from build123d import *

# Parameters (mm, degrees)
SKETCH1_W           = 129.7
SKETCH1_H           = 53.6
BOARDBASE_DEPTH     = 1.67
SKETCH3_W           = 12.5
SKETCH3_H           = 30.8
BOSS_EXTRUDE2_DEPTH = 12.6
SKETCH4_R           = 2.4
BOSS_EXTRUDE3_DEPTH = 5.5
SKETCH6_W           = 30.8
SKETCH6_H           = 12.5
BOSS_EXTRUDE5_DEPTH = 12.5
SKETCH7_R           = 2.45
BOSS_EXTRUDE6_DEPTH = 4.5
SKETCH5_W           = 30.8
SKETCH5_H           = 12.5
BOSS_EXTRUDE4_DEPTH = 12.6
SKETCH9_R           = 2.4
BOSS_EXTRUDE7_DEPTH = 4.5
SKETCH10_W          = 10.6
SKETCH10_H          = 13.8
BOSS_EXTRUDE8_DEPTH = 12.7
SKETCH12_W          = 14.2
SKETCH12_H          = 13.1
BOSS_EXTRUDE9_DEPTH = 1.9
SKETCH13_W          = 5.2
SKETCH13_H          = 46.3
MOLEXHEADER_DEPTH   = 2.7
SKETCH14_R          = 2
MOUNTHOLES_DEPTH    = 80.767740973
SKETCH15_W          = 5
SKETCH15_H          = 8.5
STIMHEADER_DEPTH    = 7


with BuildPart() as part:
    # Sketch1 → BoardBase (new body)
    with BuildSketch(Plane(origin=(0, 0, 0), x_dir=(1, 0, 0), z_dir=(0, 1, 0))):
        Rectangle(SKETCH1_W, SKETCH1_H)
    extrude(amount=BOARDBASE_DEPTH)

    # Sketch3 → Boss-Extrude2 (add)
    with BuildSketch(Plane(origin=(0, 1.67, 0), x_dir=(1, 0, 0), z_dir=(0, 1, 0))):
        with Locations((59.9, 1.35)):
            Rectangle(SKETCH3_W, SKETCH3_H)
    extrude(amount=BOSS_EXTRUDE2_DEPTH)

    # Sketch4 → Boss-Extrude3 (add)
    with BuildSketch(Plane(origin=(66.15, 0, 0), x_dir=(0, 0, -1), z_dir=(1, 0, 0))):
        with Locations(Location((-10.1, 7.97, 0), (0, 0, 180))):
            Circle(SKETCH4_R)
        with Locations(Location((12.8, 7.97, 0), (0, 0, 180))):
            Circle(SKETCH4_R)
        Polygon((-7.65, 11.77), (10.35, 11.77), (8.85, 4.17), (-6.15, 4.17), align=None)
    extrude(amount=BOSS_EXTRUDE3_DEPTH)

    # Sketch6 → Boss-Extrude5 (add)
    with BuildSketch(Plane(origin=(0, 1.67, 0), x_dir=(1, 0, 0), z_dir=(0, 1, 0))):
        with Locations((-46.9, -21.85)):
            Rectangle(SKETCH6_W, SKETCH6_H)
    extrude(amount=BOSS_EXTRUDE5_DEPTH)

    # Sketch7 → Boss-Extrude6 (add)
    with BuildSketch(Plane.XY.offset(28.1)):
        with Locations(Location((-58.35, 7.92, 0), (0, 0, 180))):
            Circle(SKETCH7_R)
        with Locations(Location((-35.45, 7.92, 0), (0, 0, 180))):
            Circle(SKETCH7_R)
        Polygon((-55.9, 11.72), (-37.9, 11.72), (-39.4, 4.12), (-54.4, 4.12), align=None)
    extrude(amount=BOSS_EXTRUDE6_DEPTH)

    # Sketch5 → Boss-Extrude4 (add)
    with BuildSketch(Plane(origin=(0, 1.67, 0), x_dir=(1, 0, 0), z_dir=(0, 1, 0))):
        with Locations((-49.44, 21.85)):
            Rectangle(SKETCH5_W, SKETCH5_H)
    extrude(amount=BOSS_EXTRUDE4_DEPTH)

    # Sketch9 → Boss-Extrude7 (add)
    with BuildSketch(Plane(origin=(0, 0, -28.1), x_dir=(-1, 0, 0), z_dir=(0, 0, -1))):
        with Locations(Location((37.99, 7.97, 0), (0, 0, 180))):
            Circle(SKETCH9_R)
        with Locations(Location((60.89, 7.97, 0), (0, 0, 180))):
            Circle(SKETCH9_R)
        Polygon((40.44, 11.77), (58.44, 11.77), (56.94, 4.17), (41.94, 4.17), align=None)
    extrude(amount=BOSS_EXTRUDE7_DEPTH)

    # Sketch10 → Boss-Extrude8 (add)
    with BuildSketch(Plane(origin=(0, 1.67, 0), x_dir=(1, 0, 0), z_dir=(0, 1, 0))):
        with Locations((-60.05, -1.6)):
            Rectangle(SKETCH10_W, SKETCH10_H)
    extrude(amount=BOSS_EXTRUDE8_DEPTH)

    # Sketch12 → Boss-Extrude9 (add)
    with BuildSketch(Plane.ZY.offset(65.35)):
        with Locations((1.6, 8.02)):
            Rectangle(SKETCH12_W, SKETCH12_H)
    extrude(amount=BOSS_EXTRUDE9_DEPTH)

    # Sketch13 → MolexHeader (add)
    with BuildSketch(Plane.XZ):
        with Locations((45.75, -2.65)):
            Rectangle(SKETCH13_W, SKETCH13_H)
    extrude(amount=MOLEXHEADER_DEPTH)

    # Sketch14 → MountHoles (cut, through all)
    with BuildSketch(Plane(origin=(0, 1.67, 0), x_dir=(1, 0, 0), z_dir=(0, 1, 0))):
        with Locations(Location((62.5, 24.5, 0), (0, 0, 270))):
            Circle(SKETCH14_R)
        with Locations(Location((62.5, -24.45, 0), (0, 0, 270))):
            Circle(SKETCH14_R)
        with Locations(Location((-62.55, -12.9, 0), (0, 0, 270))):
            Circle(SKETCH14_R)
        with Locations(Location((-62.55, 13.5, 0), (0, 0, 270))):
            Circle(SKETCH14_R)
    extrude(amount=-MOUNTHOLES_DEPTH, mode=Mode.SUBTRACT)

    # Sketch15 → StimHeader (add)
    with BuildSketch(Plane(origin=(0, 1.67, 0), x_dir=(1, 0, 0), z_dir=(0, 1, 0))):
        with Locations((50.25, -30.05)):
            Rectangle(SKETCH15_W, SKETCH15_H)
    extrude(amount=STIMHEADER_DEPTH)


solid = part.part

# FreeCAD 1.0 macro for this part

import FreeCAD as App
import Part
import Sketcher

doc = App.newDocument("Part")
body = doc.addObject("PartDesign::Body", "Body")

# Sketch on XZ plane
sketch1 = body.newObject("Sketcher::SketchObject", "Sketch")
sketch1.AttachmentSupport = (doc.getObject("XZ_Plane"), [""])
sketch1.MapMode = "FlatFace"
sketch1.addGeometry([
    Part.LineSegment(App.Vector(-65, -27, 0), App.Vector(-65, 27, 0)),
    Part.LineSegment(App.Vector(-65, 27, 0), App.Vector(65, 27, 0)),
    Part.LineSegment(App.Vector(65, 27, 0), App.Vector(65, -27, 0)),
    Part.LineSegment(App.Vector(65, -27, 0), App.Vector(-65, -27, 0)),
], False)
sketch1.addConstraint([
    Sketcher.Constraint("Coincident", 0, 2, 1, 1),
    Sketcher.Constraint("Coincident", 1, 2, 2, 1),
    Sketcher.Constraint("Coincident", 2, 2, 3, 1),
    Sketcher.Constraint("Coincident", 3, 2, 0, 1),
    Sketcher.Constraint("Vertical", 0),
    Sketcher.Constraint("Horizontal", 1),
    Sketcher.Constraint("Vertical", 2),
    Sketcher.Constraint("Horizontal", 3),
    Sketcher.Constraint("Symmetric", 0, 2, 2, 2, -1, 1),
    Sketcher.Constraint("DistanceX", 1, 1, 1, 2, 129.7),
    Sketcher.Constraint("DistanceY", 0, 1, 0, 2, 53.6),
])
pad1 = body.newObject("PartDesign::Pad", "Pad")
pad1.Profile = sketch1
pad1.Length = 1.67
pad1.Reversed = True

# Sketch on XZ plane
sketch2 = body.newObject("Sketcher::SketchObject", "Sketch001")
sketch2.AttachmentSupport = (doc.getObject("XZ_Plane"), [""])
sketch2.MapMode = "FlatFace"
sketch2.AttachmentOffset = App.Placement(App.Vector(0, 0, -1.67), App.Rotation())
sketch2.addGeometry([
    Part.LineSegment(App.Vector(54, -17, 0), App.Vector(54, 14, 0)),
    Part.LineSegment(App.Vector(54, 14, 0), App.Vector(66, 14, 0)),
    Part.LineSegment(App.Vector(66, 14, 0), App.Vector(66, -17, 0)),
    Part.LineSegment(App.Vector(66, -17, 0), App.Vector(54, -17, 0)),
], False)
sketch2.addConstraint([
    Sketcher.Constraint("Coincident", 0, 2, 1, 1),
    Sketcher.Constraint("Coincident", 1, 2, 2, 1),
    Sketcher.Constraint("Coincident", 2, 2, 3, 1),
    Sketcher.Constraint("Coincident", 3, 2, 0, 1),
    Sketcher.Constraint("Vertical", 0),
    Sketcher.Constraint("Horizontal", 1),
    Sketcher.Constraint("Vertical", 2),
    Sketcher.Constraint("Horizontal", 3),
    Sketcher.Constraint("DistanceX", 1, 1, 1, 2, 12.5),
    Sketcher.Constraint("DistanceY", 0, 1, 0, 2, 30.8),
    Sketcher.Constraint("DistanceX", -1, 1, 0, 2, 53.65),
    Sketcher.Constraint("DistanceY", -1, 1, 0, 2, 14.05),
])
pad2 = body.newObject("PartDesign::Pad", "Pad001")
pad2.Profile = sketch2
pad2.Length = 12.6
pad2.Reversed = True

# Sketch on YZ plane
sketch3 = body.newObject("Sketcher::SketchObject", "Sketch002")
sketch3.AttachmentSupport = (doc.getObject("YZ_Plane"), [""])
sketch3.MapMode = "FlatFace"
sketch3.AttachmentOffset = App.Placement(App.Vector(0, 0, 66.15), App.Rotation())
sketch3.addGeometry([
    Part.Circle(App.Vector(8, 10.1, 0), App.Vector(0, 0, 1), 2.4),  # 0
    Part.Circle(App.Vector(8, -12.8, 0), App.Vector(0, 0, 1), 2.4),  # 1
    Part.LineSegment(App.Vector(11.8, -10.3, 0), App.Vector(11.8, 7.7, 0)),  # 2
    Part.LineSegment(App.Vector(11.8, 7.7, 0), App.Vector(4.2, 6.2, 0)),  # 3
    Part.LineSegment(App.Vector(4.2, 6.2, 0), App.Vector(4.2, -8.8, 0)),  # 4
    Part.LineSegment(App.Vector(4.2, -8.8, 0), App.Vector(11.8, -10.3, 0)),  # 5
], False)
sketch3.addConstraint([
    Sketcher.Constraint("Coincident", 2, 2, 3, 1),
    Sketcher.Constraint("Coincident", 3, 2, 4, 1),
    Sketcher.Constraint("Coincident", 4, 2, 5, 1),
    Sketcher.Constraint("Coincident", 5, 2, 2, 1),
    Sketcher.Constraint("Vertical", 2),
    Sketcher.Constraint("Vertical", 4),
    Sketcher.Constraint("Equal", 0, 1),
    Sketcher.Constraint("Vertical", 0, 3, 1, 3),
    Sketcher.Constraint("Equal", 3, 5),
    Sketcher.Constraint("Diameter", 0, 4.8),
    Sketcher.Constraint("DistanceY", 2, 1, 2, 2, 18.0),
    Sketcher.Constraint("DistanceY", 4, 2, 4, 1, 15.0),
    Sketcher.Constraint("DistanceY", -1, 1, 0, 3, 10.1),
    Sketcher.Constraint("DistanceY", 1, 3, -1, 1, 12.8),
    Sketcher.Constraint("DistanceX", 0, 3, 2, 2, 3.8),
    Sketcher.Constraint("DistanceX", 3, 2, 0, 3, 3.8),
    Sketcher.Constraint("DistanceX", -1, 1, 0, 3, 7.97),
    Sketcher.Constraint("DistanceY", -1, 1, 2, 2, 7.65),
])
pad3 = body.newObject("PartDesign::Pad", "Pad002")
pad3.Profile = sketch3
pad3.Length = 5.5

# Sketch on XZ plane
sketch4 = body.newObject("Sketcher::SketchObject", "Sketch003")
sketch4.AttachmentSupport = (doc.getObject("XZ_Plane"), [""])
sketch4.MapMode = "FlatFace"
sketch4.AttachmentOffset = App.Placement(App.Vector(0, 0, -1.67), App.Rotation())
sketch4.addGeometry([
    Part.LineSegment(App.Vector(-62, 16, 0), App.Vector(-62, 28, 0)),
    Part.LineSegment(App.Vector(-62, 28, 0), App.Vector(-32, 28, 0)),
    Part.LineSegment(App.Vector(-32, 28, 0), App.Vector(-32, 16, 0)),
    Part.LineSegment(App.Vector(-32, 16, 0), App.Vector(-62, 16, 0)),
], False)
sketch4.addConstraint([
    Sketcher.Constraint("Coincident", 0, 2, 1, 1),
    Sketcher.Constraint("Coincident", 1, 2, 2, 1),
    Sketcher.Constraint("Coincident", 2, 2, 3, 1),
    Sketcher.Constraint("Coincident", 3, 2, 0, 1),
    Sketcher.Constraint("Vertical", 0),
    Sketcher.Constraint("Horizontal", 1),
    Sketcher.Constraint("Vertical", 2),
    Sketcher.Constraint("Horizontal", 3),
    Sketcher.Constraint("DistanceX", 1, 1, 1, 2, 30.8),
    Sketcher.Constraint("DistanceY", 0, 1, 0, 2, 12.5),
    Sketcher.Constraint("DistanceX", 0, 2, -1, 1, 62.3),
    Sketcher.Constraint("DistanceY", -1, 1, 0, 2, 28.1),
])
pad4 = body.newObject("PartDesign::Pad", "Pad003")
pad4.Profile = sketch4
pad4.Length = 12.5
pad4.Reversed = True

# Sketch on XY plane
sketch5 = body.newObject("Sketcher::SketchObject", "Sketch004")
sketch5.AttachmentSupport = (doc.getObject("XY_Plane"), [""])
sketch5.MapMode = "FlatFace"
sketch5.AttachmentOffset = App.Placement(App.Vector(0, 0, 28.1), App.Rotation())
sketch5.addGeometry([
    Part.Circle(App.Vector(-58.4, 7.9, 0), App.Vector(0, 0, 1), 2.5),  # 0
    Part.Circle(App.Vector(-35.5, 7.9, 0), App.Vector(0, 0, 1), 2.5),  # 1
    Part.LineSegment(App.Vector(-37.9, 11.7, 0), App.Vector(-55.9, 11.7, 0)),  # 2
    Part.LineSegment(App.Vector(-55.9, 11.7, 0), App.Vector(-54.4, 4.1, 0)),  # 3
    Part.LineSegment(App.Vector(-54.4, 4.1, 0), App.Vector(-39.4, 4.1, 0)),  # 4
    Part.LineSegment(App.Vector(-39.4, 4.1, 0), App.Vector(-37.9, 11.7, 0)),  # 5
], False)
sketch5.addConstraint([
    Sketcher.Constraint("Coincident", 2, 2, 3, 1),
    Sketcher.Constraint("Coincident", 3, 2, 4, 1),
    Sketcher.Constraint("Coincident", 4, 2, 5, 1),
    Sketcher.Constraint("Coincident", 5, 2, 2, 1),
    Sketcher.Constraint("Horizontal", 2),
    Sketcher.Constraint("Horizontal", 4),
    Sketcher.Constraint("Equal", 0, 1),
    Sketcher.Constraint("Horizontal", 0, 3, 1, 3),
    Sketcher.Constraint("Equal", 3, 5),
    Sketcher.Constraint("Diameter", 0, 4.9),
    Sketcher.Constraint("DistanceX", 2, 2, 2, 1, 18.0),
    Sketcher.Constraint("DistanceX", 4, 1, 4, 2, 15.0),
    Sketcher.Constraint("DistanceX", 2, 2, -1, 1, 55.9),
    Sketcher.Constraint("DistanceX", 0, 3, 1, 3, 22.9),
    Sketcher.Constraint("DistanceY", 0, 3, 2, 2, 3.8),
    Sketcher.Constraint("DistanceY", 3, 2, 0, 3, 3.8),
    Sketcher.Constraint("DistanceX", 0, 3, -1, 1, 58.35),
    Sketcher.Constraint("DistanceY", -1, 1, 0, 3, 7.92),
])
pad5 = body.newObject("PartDesign::Pad", "Pad004")
pad5.Profile = sketch5
pad5.Length = 4.5

# Sketch on XZ plane
sketch6 = body.newObject("Sketcher::SketchObject", "Sketch005")
sketch6.AttachmentSupport = (doc.getObject("XZ_Plane"), [""])
sketch6.MapMode = "FlatFace"
sketch6.AttachmentOffset = App.Placement(App.Vector(0, 0, -1.67), App.Rotation())
sketch6.addGeometry([
    Part.LineSegment(App.Vector(-65, -28, 0), App.Vector(-65, -16, 0)),
    Part.LineSegment(App.Vector(-65, -16, 0), App.Vector(-34, -16, 0)),
    Part.LineSegment(App.Vector(-34, -16, 0), App.Vector(-34, -28, 0)),
    Part.LineSegment(App.Vector(-34, -28, 0), App.Vector(-65, -28, 0)),
], False)
sketch6.addConstraint([
    Sketcher.Constraint("Coincident", 0, 2, 1, 1),
    Sketcher.Constraint("Coincident", 1, 2, 2, 1),
    Sketcher.Constraint("Coincident", 2, 2, 3, 1),
    Sketcher.Constraint("Coincident", 3, 2, 0, 1),
    Sketcher.Constraint("Vertical", 0),
    Sketcher.Constraint("Horizontal", 1),
    Sketcher.Constraint("Vertical", 2),
    Sketcher.Constraint("Horizontal", 3),
    Sketcher.Constraint("DistanceX", 1, 1, 1, 2, 30.8),
    Sketcher.Constraint("DistanceY", 0, 1, 0, 2, 12.5),
    Sketcher.Constraint("DistanceY", 0, 2, -1, 1, 15.6),
    Sketcher.Constraint("DistanceX", 0, 2, -1, 1, 64.84),
])
pad6 = body.newObject("PartDesign::Pad", "Pad005")
pad6.Profile = sketch6
pad6.Length = 12.6
pad6.Reversed = True

# Sketch on XY plane
sketch7 = body.newObject("Sketcher::SketchObject", "Sketch006")
sketch7.AttachmentSupport = (doc.getObject("XY_Plane"), [""])
sketch7.MapMode = "FlatFace"
sketch7.AttachmentOffset = App.Placement(App.Vector(0, 0, -28.1), App.Rotation())
sketch7.addGeometry([
    Part.Circle(App.Vector(-38, 8, 0), App.Vector(0, 0, 1), 2.4),  # 0
    Part.Circle(App.Vector(-60.9, 8, 0), App.Vector(0, 0, 1), 2.4),  # 1
    Part.LineSegment(App.Vector(-58.4, 11.8, 0), App.Vector(-40.4, 11.8, 0)),  # 2
    Part.LineSegment(App.Vector(-40.4, 11.8, 0), App.Vector(-41.9, 4.2, 0)),  # 3
    Part.LineSegment(App.Vector(-41.9, 4.2, 0), App.Vector(-56.9, 4.2, 0)),  # 4
    Part.LineSegment(App.Vector(-56.9, 4.2, 0), App.Vector(-58.4, 11.8, 0)),  # 5
], False)
sketch7.addConstraint([
    Sketcher.Constraint("Coincident", 2, 2, 3, 1),
    Sketcher.Constraint("Coincident", 3, 2, 4, 1),
    Sketcher.Constraint("Coincident", 4, 2, 5, 1),
    Sketcher.Constraint("Coincident", 5, 2, 2, 1),
    Sketcher.Constraint("Horizontal", 2),
    Sketcher.Constraint("Horizontal", 4),
    Sketcher.Constraint("Equal", 0, 1),
    Sketcher.Constraint("Horizontal", 0, 3, 1, 3),
    Sketcher.Constraint("Equal", 3, 5),
    Sketcher.Constraint("Diameter", 0, 4.8),
    Sketcher.Constraint("DistanceX", 2, 1, 2, 2, 18.0),
    Sketcher.Constraint("DistanceX", 4, 2, 4, 1, 15.0),
    Sketcher.Constraint("DistanceX", 1, 3, 0, 3, 22.9),
    Sketcher.Constraint("DistanceY", 0, 3, 2, 2, 3.8),
    Sketcher.Constraint("DistanceY", 3, 2, 0, 3, 3.8),
    Sketcher.Constraint("DistanceX", 0, 3, -1, 1, 37.99),
    Sketcher.Constraint("DistanceY", -1, 1, 0, 3, 7.97),
    Sketcher.Constraint("DistanceX", 2, 2, -1, 1, 40.44),
])
pad7 = body.newObject("PartDesign::Pad", "Pad006")
pad7.Profile = sketch7
pad7.Length = 4.5
pad7.Reversed = True

# Sketch on XZ plane
sketch8 = body.newObject("Sketcher::SketchObject", "Sketch007")
sketch8.AttachmentSupport = (doc.getObject("XZ_Plane"), [""])
sketch8.MapMode = "FlatFace"
sketch8.AttachmentOffset = App.Placement(App.Vector(0, 0, -1.67), App.Rotation())
sketch8.addGeometry([
    Part.LineSegment(App.Vector(-65, -5, 0), App.Vector(-65, 8, 0)),
    Part.LineSegment(App.Vector(-65, 8, 0), App.Vector(-55, 8, 0)),
    Part.LineSegment(App.Vector(-55, 8, 0), App.Vector(-55, -5, 0)),
    Part.LineSegment(App.Vector(-55, -5, 0), App.Vector(-65, -5, 0)),
], False)
sketch8.addConstraint([
    Sketcher.Constraint("Coincident", 0, 2, 1, 1),
    Sketcher.Constraint("Coincident", 1, 2, 2, 1),
    Sketcher.Constraint("Coincident", 2, 2, 3, 1),
    Sketcher.Constraint("Coincident", 3, 2, 0, 1),
    Sketcher.Constraint("Vertical", 0),
    Sketcher.Constraint("Horizontal", 1),
    Sketcher.Constraint("Vertical", 2),
    Sketcher.Constraint("Horizontal", 3),
    Sketcher.Constraint("DistanceX", 1, 1, 1, 2, 10.6),
    Sketcher.Constraint("DistanceY", 0, 1, 0, 2, 13.8),
    Sketcher.Constraint("DistanceY", -1, 1, 0, 2, 8.5),
    Sketcher.Constraint("DistanceX", 0, 2, -1, 1, 65.35),
])
pad8 = body.newObject("PartDesign::Pad", "Pad007")
pad8.Profile = sketch8
pad8.Length = 12.7
pad8.Reversed = True

# Sketch on YZ plane
sketch9 = body.newObject("Sketcher::SketchObject", "Sketch008")
sketch9.AttachmentSupport = (doc.getObject("YZ_Plane"), [""])
sketch9.MapMode = "FlatFace"
sketch9.AttachmentOffset = App.Placement(App.Vector(0, 0, -65.35), App.Rotation())
sketch9.addGeometry([
    Part.LineSegment(App.Vector(15, -6, 0), App.Vector(1, -6, 0)),
    Part.LineSegment(App.Vector(1, -6, 0), App.Vector(1, 9, 0)),
    Part.LineSegment(App.Vector(1, 9, 0), App.Vector(15, 9, 0)),
    Part.LineSegment(App.Vector(15, 9, 0), App.Vector(15, -6, 0)),
], False)
sketch9.addConstraint([
    Sketcher.Constraint("Coincident", 0, 2, 1, 1),
    Sketcher.Constraint("Coincident", 1, 2, 2, 1),
    Sketcher.Constraint("Coincident", 2, 2, 3, 1),
    Sketcher.Constraint("Coincident", 3, 2, 0, 1),
    Sketcher.Constraint("Horizontal", 0),
    Sketcher.Constraint("Vertical", 1),
    Sketcher.Constraint("Horizontal", 2),
    Sketcher.Constraint("Vertical", 3),
    Sketcher.Constraint("DistanceX", 0, 2, 0, 1, 13.1),
    Sketcher.Constraint("DistanceY", 1, 1, 1, 2, 14.2),
    Sketcher.Constraint("DistanceY", 0, 2, -1, 1, 5.5),
    Sketcher.Constraint("DistanceX", -1, 1, 0, 2, 1.47),
])
pad9 = body.newObject("PartDesign::Pad", "Pad008")
pad9.Profile = sketch9
pad9.Length = 1.9
pad9.Reversed = True

# Sketch on XZ plane
sketch10 = body.newObject("Sketcher::SketchObject", "Sketch009")
sketch10.AttachmentSupport = (doc.getObject("XZ_Plane"), [""])
sketch10.MapMode = "FlatFace"
sketch10.addGeometry([
    Part.LineSegment(App.Vector(43, 20, 0), App.Vector(43, -26, 0)),
    Part.LineSegment(App.Vector(43, -26, 0), App.Vector(48, -26, 0)),
    Part.LineSegment(App.Vector(48, -26, 0), App.Vector(48, 20, 0)),
    Part.LineSegment(App.Vector(48, 20, 0), App.Vector(43, 20, 0)),
], False)
sketch10.addConstraint([
    Sketcher.Constraint("Coincident", 0, 2, 1, 1),
    Sketcher.Constraint("Coincident", 1, 2, 2, 1),
    Sketcher.Constraint("Coincident", 2, 2, 3, 1),
    Sketcher.Constraint("Coincident", 3, 2, 0, 1),
    Sketcher.Constraint("Vertical", 0),
    Sketcher.Constraint("Horizontal", 1),
    Sketcher.Constraint("Vertical", 2),
    Sketcher.Constraint("Horizontal", 3),
    Sketcher.Constraint("DistanceX", 1, 1, 1, 2, 5.2),
    Sketcher.Constraint("DistanceY", 0, 2, 0, 1, 46.3),
    Sketcher.Constraint("DistanceY", 0, 2, -1, 1, 25.8),
    Sketcher.Constraint("DistanceX", -1, 1, 0, 2, 43.15),
])
pad10 = body.newObject("PartDesign::Pad", "Pad009")
pad10.Profile = sketch10
pad10.Length = 2.7

# Sketch on XZ plane
sketch11 = body.newObject("Sketcher::SketchObject", "Sketch010")
sketch11.AttachmentSupport = (doc.getObject("XZ_Plane"), [""])
sketch11.MapMode = "FlatFace"
sketch11.AttachmentOffset = App.Placement(App.Vector(0, 0, -1.67), App.Rotation())
sketch11.addGeometry([
    Part.Circle(App.Vector(62.5, -24.5, 0), App.Vector(0, 0, 1), 2),
    Part.Circle(App.Vector(62.5, 24.4, 0), App.Vector(0, 0, 1), 2),
    Part.Circle(App.Vector(-62.5, 12.9, 0), App.Vector(0, 0, 1), 2),
    Part.Circle(App.Vector(-62.5, -13.5, 0), App.Vector(0, 0, 1), 2),
], False)
sketch11.addConstraint([
    Sketcher.Constraint("Equal", 0, 1),
    Sketcher.Constraint("Equal", 1, 2),
    Sketcher.Constraint("Equal", 2, 3),
    Sketcher.Constraint("Vertical", 0, 3, 1, 3),
    Sketcher.Constraint("Vertical", 2, 3, 3, 3),
    Sketcher.Constraint("Diameter", 0, 4.0),
    Sketcher.Constraint("DistanceY", 0, 3, 3, 3, 11.0),
    Sketcher.Constraint("DistanceX", -1, 1, 0, 3, 62.5),
    Sketcher.Constraint("DistanceY", 0, 3, -1, 1, 24.5),
    Sketcher.Constraint("DistanceY", -1, 1, 2, 3, 12.9),
    Sketcher.Constraint("DistanceY", -1, 1, 1, 3, 24.45),
    Sketcher.Constraint("DistanceX", 2, 3, -1, 1, 62.55),
])
pocket1 = body.newObject("PartDesign::Pocket", "Pocket")
pocket1.Profile = sketch11
pocket1.Type = "ThroughAll"
pocket1.Reversed = True

# Sketch on XZ plane
sketch12 = body.newObject("Sketcher::SketchObject", "Sketch011")
sketch12.AttachmentSupport = (doc.getObject("XZ_Plane"), [""])
sketch12.MapMode = "FlatFace"
sketch12.AttachmentOffset = App.Placement(App.Vector(0, 0, -1.67), App.Rotation())
sketch12.addGeometry([
    Part.LineSegment(App.Vector(48, 26, 0), App.Vector(48, 34, 0)),
    Part.LineSegment(App.Vector(48, 34, 0), App.Vector(53, 34, 0)),
    Part.LineSegment(App.Vector(53, 34, 0), App.Vector(53, 26, 0)),
    Part.LineSegment(App.Vector(53, 26, 0), App.Vector(48, 26, 0)),
], False)
sketch12.addConstraint([
    Sketcher.Constraint("Coincident", 0, 2, 1, 1),
    Sketcher.Constraint("Coincident", 1, 2, 2, 1),
    Sketcher.Constraint("Coincident", 2, 2, 3, 1),
    Sketcher.Constraint("Coincident", 3, 2, 0, 1),
    Sketcher.Constraint("Vertical", 0),
    Sketcher.Constraint("Horizontal", 1),
    Sketcher.Constraint("Vertical", 2),
    Sketcher.Constraint("Horizontal", 3),
    Sketcher.Constraint("DistanceX", 1, 1, 1, 2, 5.0),
    Sketcher.Constraint("DistanceY", 0, 1, 0, 2, 8.5),
    Sketcher.Constraint("DistanceY", -1, 1, 0, 2, 34.3),
    Sketcher.Constraint("DistanceX", -1, 1, 0, 2, 47.75),
])
pad11 = body.newObject("PartDesign::Pad", "Pad010")
pad11.Profile = sketch12
pad11.Length = 7
pad11.Reversed = True

doc.recompute()
